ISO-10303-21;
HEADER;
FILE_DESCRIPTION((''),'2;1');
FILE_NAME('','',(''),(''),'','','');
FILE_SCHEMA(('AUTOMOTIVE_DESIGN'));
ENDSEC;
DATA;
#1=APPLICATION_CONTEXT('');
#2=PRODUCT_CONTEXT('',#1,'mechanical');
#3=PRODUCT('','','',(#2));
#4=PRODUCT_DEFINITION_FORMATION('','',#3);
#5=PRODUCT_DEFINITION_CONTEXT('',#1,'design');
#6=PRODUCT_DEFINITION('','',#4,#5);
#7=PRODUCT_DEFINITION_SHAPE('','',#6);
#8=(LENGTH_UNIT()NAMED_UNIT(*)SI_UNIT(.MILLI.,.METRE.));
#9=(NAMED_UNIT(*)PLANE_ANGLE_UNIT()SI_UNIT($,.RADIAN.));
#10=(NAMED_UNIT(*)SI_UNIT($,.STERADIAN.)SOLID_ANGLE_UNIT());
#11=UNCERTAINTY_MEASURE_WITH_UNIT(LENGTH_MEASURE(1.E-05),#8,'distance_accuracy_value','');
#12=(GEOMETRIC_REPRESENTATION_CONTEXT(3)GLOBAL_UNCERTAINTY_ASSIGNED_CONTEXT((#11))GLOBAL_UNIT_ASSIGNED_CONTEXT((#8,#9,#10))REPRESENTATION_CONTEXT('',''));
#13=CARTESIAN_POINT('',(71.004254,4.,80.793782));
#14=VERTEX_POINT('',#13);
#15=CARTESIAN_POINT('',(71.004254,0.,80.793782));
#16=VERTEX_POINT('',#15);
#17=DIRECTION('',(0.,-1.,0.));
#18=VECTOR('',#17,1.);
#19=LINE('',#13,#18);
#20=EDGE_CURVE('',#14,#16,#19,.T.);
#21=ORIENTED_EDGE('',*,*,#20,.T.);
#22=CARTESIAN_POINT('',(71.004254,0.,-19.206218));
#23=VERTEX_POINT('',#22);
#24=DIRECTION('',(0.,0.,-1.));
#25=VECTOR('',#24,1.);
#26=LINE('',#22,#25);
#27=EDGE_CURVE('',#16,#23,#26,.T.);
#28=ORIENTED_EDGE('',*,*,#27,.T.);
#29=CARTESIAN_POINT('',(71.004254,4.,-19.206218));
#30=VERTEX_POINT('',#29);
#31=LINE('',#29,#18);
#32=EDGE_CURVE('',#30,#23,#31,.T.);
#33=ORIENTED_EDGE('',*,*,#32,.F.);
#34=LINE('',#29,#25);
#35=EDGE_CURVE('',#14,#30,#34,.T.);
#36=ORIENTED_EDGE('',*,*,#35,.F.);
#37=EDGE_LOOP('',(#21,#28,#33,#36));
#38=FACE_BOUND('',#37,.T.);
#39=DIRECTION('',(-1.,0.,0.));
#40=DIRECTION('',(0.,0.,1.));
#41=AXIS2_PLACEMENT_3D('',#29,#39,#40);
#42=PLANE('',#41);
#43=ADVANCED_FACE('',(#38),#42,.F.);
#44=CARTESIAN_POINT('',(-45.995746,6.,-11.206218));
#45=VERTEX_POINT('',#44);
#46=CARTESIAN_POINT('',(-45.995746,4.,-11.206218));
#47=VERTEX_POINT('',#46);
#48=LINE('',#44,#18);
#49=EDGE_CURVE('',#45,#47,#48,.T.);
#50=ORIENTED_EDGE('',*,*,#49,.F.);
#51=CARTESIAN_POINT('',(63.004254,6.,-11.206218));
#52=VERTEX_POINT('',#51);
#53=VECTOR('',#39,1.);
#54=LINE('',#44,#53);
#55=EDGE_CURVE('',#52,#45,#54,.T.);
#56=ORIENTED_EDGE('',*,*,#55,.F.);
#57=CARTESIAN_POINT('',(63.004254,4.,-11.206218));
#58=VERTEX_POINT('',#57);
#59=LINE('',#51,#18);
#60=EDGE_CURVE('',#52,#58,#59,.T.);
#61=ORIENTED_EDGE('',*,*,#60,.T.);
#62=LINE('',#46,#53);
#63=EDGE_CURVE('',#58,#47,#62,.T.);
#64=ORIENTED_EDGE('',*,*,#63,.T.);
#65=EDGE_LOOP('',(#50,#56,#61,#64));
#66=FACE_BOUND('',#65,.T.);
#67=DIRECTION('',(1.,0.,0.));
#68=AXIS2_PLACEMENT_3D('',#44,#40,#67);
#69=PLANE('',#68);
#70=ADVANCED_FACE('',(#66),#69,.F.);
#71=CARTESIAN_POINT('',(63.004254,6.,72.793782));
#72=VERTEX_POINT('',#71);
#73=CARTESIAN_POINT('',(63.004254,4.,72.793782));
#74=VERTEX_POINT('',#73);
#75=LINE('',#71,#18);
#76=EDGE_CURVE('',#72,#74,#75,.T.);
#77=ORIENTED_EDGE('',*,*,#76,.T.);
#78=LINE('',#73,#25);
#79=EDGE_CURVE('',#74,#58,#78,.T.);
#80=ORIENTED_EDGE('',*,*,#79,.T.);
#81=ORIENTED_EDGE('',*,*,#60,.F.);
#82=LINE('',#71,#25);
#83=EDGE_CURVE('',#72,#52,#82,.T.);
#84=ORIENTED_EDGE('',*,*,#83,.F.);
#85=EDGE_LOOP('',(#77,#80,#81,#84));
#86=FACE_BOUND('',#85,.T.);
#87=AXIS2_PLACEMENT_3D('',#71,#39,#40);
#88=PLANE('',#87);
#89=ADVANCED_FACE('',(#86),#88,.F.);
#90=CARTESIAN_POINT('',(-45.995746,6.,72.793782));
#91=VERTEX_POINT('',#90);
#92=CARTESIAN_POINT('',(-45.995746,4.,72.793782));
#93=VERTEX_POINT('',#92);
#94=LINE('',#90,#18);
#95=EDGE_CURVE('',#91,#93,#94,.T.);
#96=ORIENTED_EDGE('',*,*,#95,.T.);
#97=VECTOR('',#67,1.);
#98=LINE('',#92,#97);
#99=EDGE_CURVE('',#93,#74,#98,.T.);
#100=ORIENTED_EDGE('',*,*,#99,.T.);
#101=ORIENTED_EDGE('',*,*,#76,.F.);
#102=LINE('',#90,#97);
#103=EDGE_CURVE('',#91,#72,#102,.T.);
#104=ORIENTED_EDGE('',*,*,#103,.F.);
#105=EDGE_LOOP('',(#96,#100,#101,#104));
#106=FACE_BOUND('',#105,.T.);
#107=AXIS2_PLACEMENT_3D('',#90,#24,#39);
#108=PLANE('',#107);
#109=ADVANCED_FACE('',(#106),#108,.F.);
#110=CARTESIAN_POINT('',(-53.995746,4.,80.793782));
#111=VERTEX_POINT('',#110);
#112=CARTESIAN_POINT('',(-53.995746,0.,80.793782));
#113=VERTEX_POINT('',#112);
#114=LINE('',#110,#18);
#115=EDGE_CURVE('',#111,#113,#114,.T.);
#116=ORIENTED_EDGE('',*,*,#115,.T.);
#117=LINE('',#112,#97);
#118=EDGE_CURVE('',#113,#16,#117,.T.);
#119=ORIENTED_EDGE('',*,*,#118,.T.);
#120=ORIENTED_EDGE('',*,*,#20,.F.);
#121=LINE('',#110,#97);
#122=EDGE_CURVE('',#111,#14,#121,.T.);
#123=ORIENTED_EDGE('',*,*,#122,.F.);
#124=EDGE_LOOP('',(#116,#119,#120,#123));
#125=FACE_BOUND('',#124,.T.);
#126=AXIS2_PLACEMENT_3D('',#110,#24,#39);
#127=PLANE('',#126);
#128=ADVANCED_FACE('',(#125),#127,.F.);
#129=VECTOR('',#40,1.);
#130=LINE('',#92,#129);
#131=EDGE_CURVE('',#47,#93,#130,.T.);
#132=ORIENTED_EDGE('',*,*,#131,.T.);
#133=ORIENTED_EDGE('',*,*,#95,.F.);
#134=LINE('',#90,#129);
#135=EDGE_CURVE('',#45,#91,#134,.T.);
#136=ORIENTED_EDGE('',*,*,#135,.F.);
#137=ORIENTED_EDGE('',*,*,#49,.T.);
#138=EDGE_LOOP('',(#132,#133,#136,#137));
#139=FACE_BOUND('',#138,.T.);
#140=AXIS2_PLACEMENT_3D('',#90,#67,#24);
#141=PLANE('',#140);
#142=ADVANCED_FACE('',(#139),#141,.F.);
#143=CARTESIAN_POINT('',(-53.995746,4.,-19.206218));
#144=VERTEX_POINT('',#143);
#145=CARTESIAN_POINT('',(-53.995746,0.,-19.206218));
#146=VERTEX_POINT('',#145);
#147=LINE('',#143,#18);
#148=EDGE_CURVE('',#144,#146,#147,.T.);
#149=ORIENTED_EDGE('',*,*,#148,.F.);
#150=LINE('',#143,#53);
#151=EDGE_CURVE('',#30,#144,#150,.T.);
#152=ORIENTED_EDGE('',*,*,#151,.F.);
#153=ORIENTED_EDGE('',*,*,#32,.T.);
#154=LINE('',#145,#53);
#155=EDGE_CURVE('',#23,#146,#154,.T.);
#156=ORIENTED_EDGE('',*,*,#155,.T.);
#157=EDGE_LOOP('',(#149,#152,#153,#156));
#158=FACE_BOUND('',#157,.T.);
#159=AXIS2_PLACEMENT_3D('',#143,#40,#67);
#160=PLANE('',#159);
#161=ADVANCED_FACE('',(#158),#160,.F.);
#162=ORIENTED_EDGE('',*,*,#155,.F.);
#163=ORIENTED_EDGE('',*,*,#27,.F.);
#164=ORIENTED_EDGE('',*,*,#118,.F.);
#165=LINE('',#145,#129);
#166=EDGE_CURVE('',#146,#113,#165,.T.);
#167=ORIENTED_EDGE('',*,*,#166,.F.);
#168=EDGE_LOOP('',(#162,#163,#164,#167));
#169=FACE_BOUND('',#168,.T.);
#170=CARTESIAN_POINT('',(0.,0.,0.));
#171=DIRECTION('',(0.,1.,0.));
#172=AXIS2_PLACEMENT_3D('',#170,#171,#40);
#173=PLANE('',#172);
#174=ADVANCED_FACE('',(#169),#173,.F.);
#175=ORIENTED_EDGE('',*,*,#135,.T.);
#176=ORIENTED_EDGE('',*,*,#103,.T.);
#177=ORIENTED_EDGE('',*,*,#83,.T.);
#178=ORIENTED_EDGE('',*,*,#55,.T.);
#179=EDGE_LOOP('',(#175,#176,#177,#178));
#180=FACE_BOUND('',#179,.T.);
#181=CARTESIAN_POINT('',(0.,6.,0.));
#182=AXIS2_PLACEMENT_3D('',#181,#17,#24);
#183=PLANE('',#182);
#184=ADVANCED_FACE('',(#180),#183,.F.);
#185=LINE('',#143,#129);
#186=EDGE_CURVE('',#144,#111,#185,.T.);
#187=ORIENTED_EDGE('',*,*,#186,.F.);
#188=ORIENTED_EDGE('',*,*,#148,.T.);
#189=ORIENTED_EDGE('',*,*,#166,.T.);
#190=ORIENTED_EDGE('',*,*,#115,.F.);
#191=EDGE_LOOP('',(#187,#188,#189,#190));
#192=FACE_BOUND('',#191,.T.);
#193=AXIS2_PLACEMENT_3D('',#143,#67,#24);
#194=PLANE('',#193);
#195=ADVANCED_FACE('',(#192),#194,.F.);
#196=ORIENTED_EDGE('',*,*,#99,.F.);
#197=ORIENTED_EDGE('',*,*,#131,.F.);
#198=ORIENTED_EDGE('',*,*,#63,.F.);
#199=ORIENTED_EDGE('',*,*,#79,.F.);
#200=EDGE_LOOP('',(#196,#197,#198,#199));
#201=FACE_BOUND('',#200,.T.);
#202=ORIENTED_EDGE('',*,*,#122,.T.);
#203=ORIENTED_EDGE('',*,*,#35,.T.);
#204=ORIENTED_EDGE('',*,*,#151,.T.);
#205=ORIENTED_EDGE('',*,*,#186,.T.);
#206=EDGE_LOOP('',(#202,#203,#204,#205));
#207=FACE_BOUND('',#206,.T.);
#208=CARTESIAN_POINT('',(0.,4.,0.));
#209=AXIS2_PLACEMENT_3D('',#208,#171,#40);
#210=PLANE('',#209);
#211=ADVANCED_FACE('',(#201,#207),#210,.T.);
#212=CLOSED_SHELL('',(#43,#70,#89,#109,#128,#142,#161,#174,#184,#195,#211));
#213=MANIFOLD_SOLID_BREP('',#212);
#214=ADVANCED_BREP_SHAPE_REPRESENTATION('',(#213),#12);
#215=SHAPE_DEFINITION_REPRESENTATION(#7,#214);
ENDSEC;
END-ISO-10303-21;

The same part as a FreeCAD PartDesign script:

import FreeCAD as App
import Part
import Sketcher
from FreeCAD import Vector


def add_polygon(sketch, points):
    """Adds a closed chain of lines whose ends are joined by coincident constraints."""
    first, n = sketch.GeometryCount, len(points)
    for a, b in zip(points, points[1:] + points[:1]):
        sketch.addGeometry(Part.LineSegment(App.Vector(*a, 0), App.Vector(*b, 0)), False)
    for i in range(n):
        sketch.addConstraint(Sketcher.Constraint("Coincident", first + i, 2, first + (i + 1) % n, 1))

doc = App.newDocument("Part")
body = doc.addObject("PartDesign::Body", "Body")

# Sketch on XZ plane
sketch1 = body.newObject("Sketcher::SketchObject", "Sketch")
sketch1.AttachmentSupport = (doc.getObject("XZ_Plane"), [""])
sketch1.MapMode = "FlatFace"
add_polygon(sketch1, [(-54, -19), (-54, 81), (71, 81), (71, -19)])  # lines 0-3
sketch1.addConstraint(Sketcher.Constraint("Vertical", 0))
sketch1.addConstraint(Sketcher.Constraint("Horizontal", 1))
sketch1.addConstraint(Sketcher.Constraint("Vertical", 2))
sketch1.addConstraint(Sketcher.Constraint("Horizontal", 3))
sketch1.addConstraint(Sketcher.Constraint("DistanceX", 1, 1, 1, 2, 125.0))
sketch1.addConstraint(Sketcher.Constraint("DistanceY", 0, 1, 0, 2, 100.0))
sketch1.addConstraint(Sketcher.Constraint("DistanceX", 0, 2, -1, 1, 53.995746))
sketch1.addConstraint(Sketcher.Constraint("DistanceY", -1, 1, 0, 2, 80.793782))
pad1 = body.newObject("PartDesign::Pad", "Pad")
pad1.Profile = sketch1
pad1.Length = 4
pad1.Reversed = True

# Sketch on XZ plane
sketch2 = body.newObject("Sketcher::SketchObject", "Sketch001")
sketch2.AttachmentSupport = (doc.getObject("XZ_Plane"), [""])
sketch2.MapMode = "FlatFace"
sketch2.AttachmentOffset = App.Placement(Vector(0, 0, -4), App.Rotation())
add_polygon(sketch2, [(-46, -11), (-46, 73), (63, 73), (63, -11)])  # lines 0-3
sketch2.addConstraint(Sketcher.Constraint("Vertical", 0))
sketch2.addConstraint(Sketcher.Constraint("Horizontal", 1))
sketch2.addConstraint(Sketcher.Constraint("Vertical", 2))
sketch2.addConstraint(Sketcher.Constraint("Horizontal", 3))
sketch2.addConstraint(Sketcher.Constraint("DistanceX", 1, 1, 1, 2, 109.0))
sketch2.addConstraint(Sketcher.Constraint("DistanceY", 0, 1, 0, 2, 84.0))
sketch2.addConstraint(Sketcher.Constraint("DistanceX", 0, 2, -1, 1, 45.995746))
sketch2.addConstraint(Sketcher.Constraint("DistanceY", -1, 1, 0, 2, 72.793782))
pad2 = body.newObject("PartDesign::Pad", "Pad001")
pad2.Profile = sketch2
pad2.Length = 2
pad2.Reversed = True

doc.recompute()
